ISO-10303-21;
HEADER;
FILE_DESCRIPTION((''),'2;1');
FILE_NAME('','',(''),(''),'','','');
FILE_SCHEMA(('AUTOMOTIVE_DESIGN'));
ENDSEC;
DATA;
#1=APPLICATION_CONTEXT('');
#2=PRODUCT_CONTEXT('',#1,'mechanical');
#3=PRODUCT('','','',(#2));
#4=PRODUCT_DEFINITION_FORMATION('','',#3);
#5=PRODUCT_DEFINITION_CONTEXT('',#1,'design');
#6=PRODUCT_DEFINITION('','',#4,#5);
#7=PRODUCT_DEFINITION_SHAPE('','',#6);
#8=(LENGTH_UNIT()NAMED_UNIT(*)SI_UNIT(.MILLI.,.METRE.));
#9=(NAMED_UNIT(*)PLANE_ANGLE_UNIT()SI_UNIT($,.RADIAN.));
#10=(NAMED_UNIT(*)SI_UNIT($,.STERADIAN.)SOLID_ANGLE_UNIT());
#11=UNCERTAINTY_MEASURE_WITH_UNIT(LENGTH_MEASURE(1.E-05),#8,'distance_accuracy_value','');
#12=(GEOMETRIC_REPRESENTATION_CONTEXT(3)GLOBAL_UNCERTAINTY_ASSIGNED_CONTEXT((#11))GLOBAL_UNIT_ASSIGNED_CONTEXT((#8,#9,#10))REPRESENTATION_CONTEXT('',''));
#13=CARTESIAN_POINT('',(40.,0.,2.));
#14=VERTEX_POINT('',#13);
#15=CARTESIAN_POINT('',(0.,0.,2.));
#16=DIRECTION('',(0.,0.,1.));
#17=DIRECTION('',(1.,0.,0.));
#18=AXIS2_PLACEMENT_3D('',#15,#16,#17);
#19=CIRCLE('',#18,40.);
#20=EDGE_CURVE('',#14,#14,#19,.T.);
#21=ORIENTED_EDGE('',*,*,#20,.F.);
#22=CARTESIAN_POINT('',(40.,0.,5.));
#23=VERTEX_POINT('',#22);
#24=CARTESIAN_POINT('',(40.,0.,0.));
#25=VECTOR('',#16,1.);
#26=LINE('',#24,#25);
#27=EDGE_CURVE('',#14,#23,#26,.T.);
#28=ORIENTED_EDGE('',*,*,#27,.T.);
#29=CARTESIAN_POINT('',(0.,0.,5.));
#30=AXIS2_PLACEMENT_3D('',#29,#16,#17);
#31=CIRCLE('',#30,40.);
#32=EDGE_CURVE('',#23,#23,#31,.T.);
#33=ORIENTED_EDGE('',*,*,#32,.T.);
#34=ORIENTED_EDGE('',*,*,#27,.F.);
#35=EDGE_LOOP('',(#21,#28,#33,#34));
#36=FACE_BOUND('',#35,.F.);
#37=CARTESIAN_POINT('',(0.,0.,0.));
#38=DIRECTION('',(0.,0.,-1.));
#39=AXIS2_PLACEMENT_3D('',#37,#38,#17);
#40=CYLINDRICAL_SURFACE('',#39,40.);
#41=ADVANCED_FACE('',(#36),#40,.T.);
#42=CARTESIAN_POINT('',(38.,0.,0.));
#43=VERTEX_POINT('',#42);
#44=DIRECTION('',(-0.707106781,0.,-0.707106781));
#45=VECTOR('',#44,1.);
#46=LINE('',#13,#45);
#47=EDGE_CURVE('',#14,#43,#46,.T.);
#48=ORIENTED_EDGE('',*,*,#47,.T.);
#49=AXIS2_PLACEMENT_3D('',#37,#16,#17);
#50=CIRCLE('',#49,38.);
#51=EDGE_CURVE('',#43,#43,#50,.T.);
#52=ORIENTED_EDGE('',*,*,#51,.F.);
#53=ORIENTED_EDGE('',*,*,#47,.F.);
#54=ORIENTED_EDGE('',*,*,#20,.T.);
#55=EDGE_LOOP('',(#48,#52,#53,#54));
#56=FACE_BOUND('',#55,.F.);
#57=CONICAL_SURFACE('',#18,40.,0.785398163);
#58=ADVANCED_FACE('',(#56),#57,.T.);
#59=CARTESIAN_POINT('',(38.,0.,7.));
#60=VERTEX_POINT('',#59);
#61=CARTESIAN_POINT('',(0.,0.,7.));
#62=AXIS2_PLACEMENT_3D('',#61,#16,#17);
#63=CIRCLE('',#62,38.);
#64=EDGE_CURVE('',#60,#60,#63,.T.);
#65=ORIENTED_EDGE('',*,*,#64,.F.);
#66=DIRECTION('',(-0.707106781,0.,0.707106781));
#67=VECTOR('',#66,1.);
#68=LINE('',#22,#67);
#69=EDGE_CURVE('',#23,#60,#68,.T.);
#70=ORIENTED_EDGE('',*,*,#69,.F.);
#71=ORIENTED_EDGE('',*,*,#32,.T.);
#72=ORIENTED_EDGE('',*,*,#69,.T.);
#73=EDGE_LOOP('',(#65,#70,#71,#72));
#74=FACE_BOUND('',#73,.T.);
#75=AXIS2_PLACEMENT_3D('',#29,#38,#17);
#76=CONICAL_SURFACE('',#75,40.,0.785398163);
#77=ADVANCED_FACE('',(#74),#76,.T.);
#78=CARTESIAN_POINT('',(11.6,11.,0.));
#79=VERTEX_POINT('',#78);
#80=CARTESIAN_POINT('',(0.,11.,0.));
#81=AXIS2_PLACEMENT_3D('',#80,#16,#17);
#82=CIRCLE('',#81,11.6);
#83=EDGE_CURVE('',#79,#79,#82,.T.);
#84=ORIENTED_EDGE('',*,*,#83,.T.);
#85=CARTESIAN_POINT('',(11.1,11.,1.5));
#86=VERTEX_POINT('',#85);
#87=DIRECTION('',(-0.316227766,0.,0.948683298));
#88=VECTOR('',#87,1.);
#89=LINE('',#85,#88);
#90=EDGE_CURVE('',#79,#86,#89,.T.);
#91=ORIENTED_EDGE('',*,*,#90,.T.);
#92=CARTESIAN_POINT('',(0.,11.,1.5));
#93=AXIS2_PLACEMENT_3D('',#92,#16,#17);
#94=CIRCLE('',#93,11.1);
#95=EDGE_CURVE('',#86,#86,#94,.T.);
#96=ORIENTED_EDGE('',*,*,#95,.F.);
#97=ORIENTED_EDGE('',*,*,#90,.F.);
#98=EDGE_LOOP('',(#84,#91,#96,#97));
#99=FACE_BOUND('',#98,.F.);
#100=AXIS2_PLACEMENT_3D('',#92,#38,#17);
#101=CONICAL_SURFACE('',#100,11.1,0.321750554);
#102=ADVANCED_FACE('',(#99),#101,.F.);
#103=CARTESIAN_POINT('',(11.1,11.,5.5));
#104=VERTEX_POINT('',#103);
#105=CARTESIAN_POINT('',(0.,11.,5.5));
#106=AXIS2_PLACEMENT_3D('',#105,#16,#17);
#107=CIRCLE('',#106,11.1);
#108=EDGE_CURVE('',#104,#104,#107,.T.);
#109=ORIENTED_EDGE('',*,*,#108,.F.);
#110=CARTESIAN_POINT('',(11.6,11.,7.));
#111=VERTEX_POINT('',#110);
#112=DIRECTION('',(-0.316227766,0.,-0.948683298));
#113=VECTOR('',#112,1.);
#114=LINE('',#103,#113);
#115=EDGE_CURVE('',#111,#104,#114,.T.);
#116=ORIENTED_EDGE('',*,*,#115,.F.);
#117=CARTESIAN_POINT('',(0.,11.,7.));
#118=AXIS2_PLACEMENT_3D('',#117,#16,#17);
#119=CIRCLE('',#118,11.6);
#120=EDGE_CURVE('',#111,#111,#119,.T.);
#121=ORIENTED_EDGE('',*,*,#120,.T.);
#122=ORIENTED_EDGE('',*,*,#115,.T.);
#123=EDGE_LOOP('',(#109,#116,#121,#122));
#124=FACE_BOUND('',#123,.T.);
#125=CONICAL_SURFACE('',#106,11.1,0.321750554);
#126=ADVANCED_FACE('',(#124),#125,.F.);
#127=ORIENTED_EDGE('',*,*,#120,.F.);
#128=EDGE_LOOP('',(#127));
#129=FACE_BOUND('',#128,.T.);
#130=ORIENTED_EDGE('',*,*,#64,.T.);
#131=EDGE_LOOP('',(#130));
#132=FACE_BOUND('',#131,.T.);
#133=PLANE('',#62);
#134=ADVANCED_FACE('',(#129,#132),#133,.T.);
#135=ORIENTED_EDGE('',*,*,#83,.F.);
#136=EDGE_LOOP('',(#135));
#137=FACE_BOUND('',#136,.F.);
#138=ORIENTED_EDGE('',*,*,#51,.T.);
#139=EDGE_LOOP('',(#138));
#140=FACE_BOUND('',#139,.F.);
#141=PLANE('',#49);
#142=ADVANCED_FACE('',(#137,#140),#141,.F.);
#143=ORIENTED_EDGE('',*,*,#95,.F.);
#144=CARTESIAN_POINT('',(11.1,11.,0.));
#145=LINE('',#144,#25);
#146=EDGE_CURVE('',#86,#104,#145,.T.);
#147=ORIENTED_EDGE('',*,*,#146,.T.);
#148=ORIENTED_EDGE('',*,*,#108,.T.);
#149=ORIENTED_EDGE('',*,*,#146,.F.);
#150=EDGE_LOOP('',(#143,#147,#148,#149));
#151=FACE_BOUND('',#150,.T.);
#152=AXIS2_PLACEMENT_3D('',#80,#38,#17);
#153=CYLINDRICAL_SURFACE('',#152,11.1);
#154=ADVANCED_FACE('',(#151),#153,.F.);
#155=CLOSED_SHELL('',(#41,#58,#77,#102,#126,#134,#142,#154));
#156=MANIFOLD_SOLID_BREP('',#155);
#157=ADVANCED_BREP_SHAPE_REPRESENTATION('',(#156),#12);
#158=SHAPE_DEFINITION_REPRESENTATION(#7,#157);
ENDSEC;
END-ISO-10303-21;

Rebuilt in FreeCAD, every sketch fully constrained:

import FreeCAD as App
import Part
import Sketcher
from FreeCAD import Vector
Q = App.Units.Quantity


def edges_at(feature, points):
    """Names of the edges that pass closest to the given points."""
    edges = feature.Shape.Edges
    near = lambda p: min(range(len(edges)), key=lambda i: edges[i].distToShape(Part.Vertex(*p))[0])
    return sorted({f"Edge{near(p) + 1}" for p in points})

doc = App.newDocument("Part")
body = doc.addObject("PartDesign::Body", "Body")

sketch1 = body.newObject("Sketcher::SketchObject", "Sketch")
sketch1.AttachmentSupport = (doc.getObject("XY_Plane"), [""])
sketch1.MapMode = "FlatFace"
sketch1.addGeometry([
    Part.Circle(Vector(0, 0, 0), Vector(0, 0, 1), 40),
    Part.Circle(Vector(0, 11, 0), Vector(0, 0, 1), 11),
], False)
sketch1.addConstraint([
    Sketcher.Constraint("Coincident", 0, 3, -1, 1),
    Sketcher.Constraint("PointOnObject", 1, 3, -2),
    Sketcher.Constraint("Diameter", 0, Q("80 mm")),
    Sketcher.Constraint("Diameter", 1, Q("22.2 mm")),
    Sketcher.Constraint("DistanceY", -1, 1, 1, 3, Q("11 mm")),
])
pad1 = body.newObject("PartDesign::Pad", "Pad")
pad1.Profile = sketch1
pad1.Length = 7
doc.recompute()

chamfer = body.newObject("PartDesign::Chamfer", "Chamfer")
chamfer.Base = (pad1, edges_at(pad1, [(-40, 0, 7), (-40, 0, 0)]))
chamfer.Size = 2
doc.recompute()

chamfer2 = body.newObject("PartDesign::Chamfer", "Chamfer001")
chamfer2.Base = (chamfer, edges_at(chamfer, [(-11.1, 11, 0), (-11.1, 11, 7)]))
chamfer2.ChamferType = "Two distances"
chamfer2.Size = 0.5
chamfer2.Size2 = 1.5

doc.recompute()
